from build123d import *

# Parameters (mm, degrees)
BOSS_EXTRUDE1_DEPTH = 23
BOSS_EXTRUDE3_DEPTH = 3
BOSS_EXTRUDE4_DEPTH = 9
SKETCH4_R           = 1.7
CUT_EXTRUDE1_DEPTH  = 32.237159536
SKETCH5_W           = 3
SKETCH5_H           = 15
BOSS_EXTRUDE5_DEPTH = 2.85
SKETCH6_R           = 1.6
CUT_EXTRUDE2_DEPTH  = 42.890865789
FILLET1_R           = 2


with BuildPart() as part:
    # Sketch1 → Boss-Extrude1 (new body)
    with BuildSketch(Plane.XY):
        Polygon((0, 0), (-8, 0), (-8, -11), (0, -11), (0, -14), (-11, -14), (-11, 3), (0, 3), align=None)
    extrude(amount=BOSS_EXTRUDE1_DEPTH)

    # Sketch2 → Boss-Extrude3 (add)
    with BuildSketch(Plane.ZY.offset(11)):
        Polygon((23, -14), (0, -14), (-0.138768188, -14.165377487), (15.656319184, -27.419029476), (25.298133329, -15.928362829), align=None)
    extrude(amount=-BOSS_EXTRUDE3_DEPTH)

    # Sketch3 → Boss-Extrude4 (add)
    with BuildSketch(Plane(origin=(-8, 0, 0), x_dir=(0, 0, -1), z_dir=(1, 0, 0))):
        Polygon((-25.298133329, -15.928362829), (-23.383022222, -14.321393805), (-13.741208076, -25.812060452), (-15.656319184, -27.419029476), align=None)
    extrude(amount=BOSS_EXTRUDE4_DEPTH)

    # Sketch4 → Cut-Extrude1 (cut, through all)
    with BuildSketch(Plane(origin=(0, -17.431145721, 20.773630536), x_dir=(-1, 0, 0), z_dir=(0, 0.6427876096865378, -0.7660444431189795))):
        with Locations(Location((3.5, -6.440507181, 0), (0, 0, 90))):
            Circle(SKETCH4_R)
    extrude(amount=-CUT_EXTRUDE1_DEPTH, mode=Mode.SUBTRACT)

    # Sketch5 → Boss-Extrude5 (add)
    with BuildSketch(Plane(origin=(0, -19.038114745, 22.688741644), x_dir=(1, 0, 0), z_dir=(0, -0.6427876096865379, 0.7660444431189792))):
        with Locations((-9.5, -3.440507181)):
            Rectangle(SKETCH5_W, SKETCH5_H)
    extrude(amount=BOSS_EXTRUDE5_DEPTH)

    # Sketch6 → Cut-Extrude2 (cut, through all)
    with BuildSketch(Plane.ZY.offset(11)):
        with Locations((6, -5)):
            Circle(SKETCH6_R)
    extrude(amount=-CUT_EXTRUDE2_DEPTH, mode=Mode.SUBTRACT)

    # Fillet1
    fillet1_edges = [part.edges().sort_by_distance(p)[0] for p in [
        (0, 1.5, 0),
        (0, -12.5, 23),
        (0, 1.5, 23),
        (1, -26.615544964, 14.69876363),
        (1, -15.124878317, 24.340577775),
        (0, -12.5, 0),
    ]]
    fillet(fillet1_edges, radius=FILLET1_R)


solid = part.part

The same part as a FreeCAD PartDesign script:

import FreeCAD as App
import Part
import Sketcher

V = App.Vector
Q = App.Units.Quantity


def edges_at(feature, points):
    """Names of the edges that pass closest to the given points."""
    edges = feature.Shape.Edges
    near = lambda p: min(range(len(edges)), key=lambda i: edges[i].distToShape(Part.Vertex(*p))[0])
    return sorted({f"Edge{near(p) + 1}" for p in points})

doc = App.newDocument("Part")
body = doc.addObject("PartDesign::Body", "Body")

sketch1 = body.newObject("Sketcher::SketchObject", "Sketch")
sketch1.AttachmentSupport = (doc.getObject("XY_Plane"), [""])
sketch1.MapMode = "FlatFace"
sketch1.addGeometry(Part.LineSegment(V(-8, 0, 0), V(0, 0, 0)), False)
sketch1.addGeometry(Part.LineSegment(V(0, 0, 0), V(0, 3, 0)), False)
sketch1.addGeometry(Part.LineSegment(V(0, 3, 0), V(-11, 3, 0)), False)
sketch1.addGeometry(Part.LineSegment(V(-11, 3, 0), V(-11, -14, 0)), False)
sketch1.addGeometry(Part.LineSegment(V(-11, -14, 0), V(0, -14, 0)), False)
sketch1.addGeometry(Part.LineSegment(V(0, -14, 0), V(0, -11, 0)), False)
sketch1.addGeometry(Part.LineSegment(V(0, -11, 0), V(-8, -11, 0)), False)
sketch1.addGeometry(Part.LineSegment(V(-8, -11, 0), V(-8, 0, 0)), False)
sketch1.addConstraint(Sketcher.Constraint("Coincident", 0, 2, 1, 1))
sketch1.addConstraint(Sketcher.Constraint("Coincident", 1, 2, 2, 1))
sketch1.addConstraint(Sketcher.Constraint("Coincident", 2, 2, 3, 1))
sketch1.addConstraint(Sketcher.Constraint("Coincident", 3, 2, 4, 1))
sketch1.addConstraint(Sketcher.Constraint("Coincident", 4, 2, 5, 1))
sketch1.addConstraint(Sketcher.Constraint("Coincident", 5, 2, 6, 1))
sketch1.addConstraint(Sketcher.Constraint("Coincident", 6, 2, 7, 1))
sketch1.addConstraint(Sketcher.Constraint("Coincident", 7, 2, 0, 1))
sketch1.addConstraint(Sketcher.Constraint("Horizontal", 0))
sketch1.addConstraint(Sketcher.Constraint("Vertical", 1))
sketch1.addConstraint(Sketcher.Constraint("Horizontal", 2))
sketch1.addConstraint(Sketcher.Constraint("Vertical", 3))
sketch1.addConstraint(Sketcher.Constraint("Horizontal", 4))
sketch1.addConstraint(Sketcher.Constraint("Vertical", 5))
sketch1.addConstraint(Sketcher.Constraint("Horizontal", 6))
sketch1.addConstraint(Sketcher.Constraint("Vertical", 7))
sketch1.addConstraint(Sketcher.Constraint("Coincident", 0, 2, -1, 1))
sketch1.addConstraint(Sketcher.Constraint("PointOnObject", 4, 2, -2))
sketch1.addConstraint(Sketcher.Constraint("Equal", 1, 5))
sketch1.addConstraint(Sketcher.Constraint("Equal", 4, 7))
sketch1.addConstraint(Sketcher.Constraint("DistanceX", 0, 1, 0, 2, Q("8 mm")))
sketch1.addConstraint(Sketcher.Constraint("DistanceX", 2, 2, 2, 1, Q("11 mm")))
sketch1.addConstraint(Sketcher.Constraint("DistanceY", 1, 1, 1, 2, Q("3 mm")))
pad1 = body.newObject("PartDesign::Pad", "Pad")
pad1.Profile = sketch1
pad1.Length = 23

sketch2 = body.newObject("Sketcher::SketchObject", "Sketch001")
sketch2.AttachmentSupport = (doc.getObject("YZ_Plane"), [""])
sketch2.MapMode = "FlatFace"
sketch2.AttachmentOffset = App.Placement(V(0, 0, -11), App.Rotation())
sketch2.addGeometry(Part.LineSegment(V(-14, 23, 0), V(-14, 0, 0)), False)
sketch2.addGeometry(Part.LineSegment(V(-14, 0, 0), V(-14.17, -0.14, 0)), False)
sketch2.addGeometry(Part.LineSegment(V(-14.17, -0.14, 0), V(-27.42, 15.66, 0)), False)
sketch2.addGeometry(Part.LineSegment(V(-27.42, 15.66, 0), V(-15.93, 25.3, 0)), False)
sketch2.addGeometry(Part.LineSegment(V(-15.93, 25.3, 0), V(-14, 23, 0)), False)
sketch2.addConstraint(Sketcher.Constraint("Coincident", 0, 2, 1, 1))
sketch2.addConstraint(Sketcher.Constraint("Coincident", 1, 2, 2, 1))
sketch2.addConstraint(Sketcher.Constraint("Coincident", 2, 2, 3, 1))
sketch2.addConstraint(Sketcher.Constraint("Coincident", 3, 2, 4, 1))
sketch2.addConstraint(Sketcher.Constraint("Coincident", 4, 2, 0, 1))
sketch2.addConstraint(Sketcher.Constraint("Vertical", 0))
sketch2.addConstraint(Sketcher.Constraint("PointOnObject", 0, 2, -1))
sketch2.addConstraint(Sketcher.Constraint("Perpendicular", 1, 2))
sketch2.addConstraint(Sketcher.Constraint("Perpendicular", 2, 3))
sketch2.addConstraint(Sketcher.Constraint("Perpendicular", 3, 4))
sketch2.addConstraint(Sketcher.Constraint("DistanceY", 0, 2, 0, 1, Q("23 mm")))
sketch2.addConstraint(Sketcher.Constraint("Angle", 1, Q("-140 deg")))
sketch2.addConstraint(Sketcher.Constraint("Distance", 3, Q("15 mm")))
sketch2.addConstraint(Sketcher.Constraint("Distance", 4, Q("3 mm")))
sketch2.addConstraint(Sketcher.Constraint("DistanceX", 0, 2, -1, 1, Q("14 mm")))
pad2 = body.newObject("PartDesign::Pad", "Pad001")
pad2.Profile = sketch2
pad2.Length = 3

sketch3 = body.newObject("Sketcher::SketchObject", "Sketch002")
sketch3.AttachmentSupport = (doc.getObject("YZ_Plane"), [""])
sketch3.MapMode = "FlatFace"
sketch3.AttachmentOffset = App.Placement(V(0, 0, -8), App.Rotation())
sketch3.addGeometry(Part.LineSegment(V(-14.3, 23.4, 0), V(-15.9, 25.3, 0)), False)
sketch3.addGeometry(Part.LineSegment(V(-15.9, 25.3, 0), V(-27.4, 15.7, 0)), False)
sketch3.addGeometry(Part.LineSegment(V(-27.4, 15.7, 0), V(-25.8, 13.7, 0)), False)
sketch3.addGeometry(Part.LineSegment(V(-25.8, 13.7, 0), V(-14.3, 23.4, 0)), False)
sketch3.addConstraint(Sketcher.Constraint("Coincident", 0, 2, 1, 1))
sketch3.addConstraint(Sketcher.Constraint("Coincident", 1, 2, 2, 1))
sketch3.addConstraint(Sketcher.Constraint("Coincident", 2, 2, 3, 1))
sketch3.addConstraint(Sketcher.Constraint("Coincident", 3, 2, 0, 1))
sketch3.addConstraint(Sketcher.Constraint("Perpendicular", 0, 1))
sketch3.addConstraint(Sketcher.Constraint("Perpendicular", 1, 2))
sketch3.addConstraint(Sketcher.Constraint("Perpendicular", 2, 3))
sketch3.addConstraint(Sketcher.Constraint("Angle", 0, Q("130 deg")))
sketch3.addConstraint(Sketcher.Constraint("Distance", 1, Q("15 mm")))
sketch3.addConstraint(Sketcher.Constraint("Distance", 0, Q("2.5 mm")))
sketch3.addConstraint(Sketcher.Constraint("DistanceX", 1, 2, -1, 1, Q("27.419029 mm")))
sketch3.addConstraint(Sketcher.Constraint("DistanceY", -1, 1, 1, 2, Q("15.656319 mm")))
pad3 = body.newObject("PartDesign::Pad", "Pad002")
pad3.Profile = sketch3
pad3.Length = 9

sketch4 = body.newObject("Sketcher::SketchObject", "Sketch003")
sketch4.Placement = App.Placement(V(0, -17.431146, 20.773631), App.Rotation(V(-1, 0, 0), V(0, 0.766044443, 0.64278761), V(0, 0.64278761, -0.766044443), "ZXY"))
sketch4.addGeometry(Part.Circle(V(3.5, -6.4, 0), V(0, 0, 1), 1.7), False)
sketch4.addConstraint(Sketcher.Constraint("Diameter", 0, Q("3.4 mm")))
sketch4.addConstraint(Sketcher.Constraint("DistanceX", -1, 1, 0, 3, Q("3.5 mm")))
sketch4.addConstraint(Sketcher.Constraint("DistanceY", 0, 3, -1, 1, Q("6.440507 mm")))
pocket1 = body.newObject("PartDesign::Pocket", "Pocket")
pocket1.Profile = sketch4
pocket1.Type = "ThroughAll"

sketch5 = body.newObject("Sketcher::SketchObject", "Sketch004")
sketch5.Placement = App.Placement(V(0, -19.038115, 22.688742), App.Rotation(V(1, 0, 0), V(0, 0.766044443, 0.64278761), V(0, -0.64278761, 0.766044443), "ZXY"))
sketch5.addGeometry(Part.LineSegment(V(-11, 4.1, 0), V(-11, -10.9, 0)), False)
sketch5.addGeometry(Part.LineSegment(V(-11, -10.9, 0), V(-8, -10.9, 0)), False)
sketch5.addGeometry(Part.LineSegment(V(-8, -10.9, 0), V(-8, 4.1, 0)), False)
sketch5.addGeometry(Part.LineSegment(V(-8, 4.1, 0), V(-11, 4.1, 0)), False)
sketch5.addConstraint(Sketcher.Constraint("Coincident", 0, 2, 1, 1))
sketch5.addConstraint(Sketcher.Constraint("Coincident", 1, 2, 2, 1))
sketch5.addConstraint(Sketcher.Constraint("Coincident", 2, 2, 3, 1))
sketch5.addConstraint(Sketcher.Constraint("Coincident", 3, 2, 0, 1))
sketch5.addConstraint(Sketcher.Constraint("Vertical", 0))
sketch5.addConstraint(Sketcher.Constraint("Horizontal", 1))
sketch5.addConstraint(Sketcher.Constraint("Vertical", 2))
sketch5.addConstraint(Sketcher.Constraint("Horizontal", 3))
sketch5.addConstraint(Sketcher.Constraint("DistanceX", 1, 1, 1, 2, Q("3 mm")))
sketch5.addConstraint(Sketcher.Constraint("DistanceY", 0, 2, 0, 1, Q("15 mm")))
sketch5.addConstraint(Sketcher.Constraint("DistanceX", 0, 2, -1, 1, Q("11 mm")))
sketch5.addConstraint(Sketcher.Constraint("DistanceY", 0, 2, -1, 1, Q("10.940507 mm")))
pad4 = body.newObject("PartDesign::Pad", "Pad003")
pad4.Profile = sketch5
pad4.Length = 2.85

sketch6 = body.newObject("Sketcher::SketchObject", "Sketch005")
sketch6.AttachmentSupport = (doc.getObject("YZ_Plane"), [""])
sketch6.MapMode = "FlatFace"
sketch6.AttachmentOffset = App.Placement(V(0, 0, -11), App.Rotation())
sketch6.addGeometry(Part.Circle(V(-5, 6, 0), V(0, 0, 1), 1.6), False)
sketch6.addConstraint(Sketcher.Constraint("Diameter", 0, Q("3.2 mm")))
sketch6.addConstraint(Sketcher.Constraint("DistanceX", 0, 3, -1, 1, Q("5 mm")))
sketch6.addConstraint(Sketcher.Constraint("DistanceY", -1, 1, 0, 3, Q("6 mm")))
pocket2 = body.newObject("PartDesign::Pocket", "Pocket001")
pocket2.Profile = sketch6
pocket2.Type = "ThroughAll"
pocket2.Reversed = True
doc.recompute()

fillet = body.newObject("PartDesign::Fillet", "Fillet")
fillet.Base = (pocket2, edges_at(pocket2, [
    (0, 1.5, 0),
    (0, -12.5, 23),
    (0, 1.5, 23),
    (1, -26.616, 14.699),
    (1, -15.125, 24.341),
    (0, -12.5, 0),
]))
fillet.Radius = 2

doc.recompute()
